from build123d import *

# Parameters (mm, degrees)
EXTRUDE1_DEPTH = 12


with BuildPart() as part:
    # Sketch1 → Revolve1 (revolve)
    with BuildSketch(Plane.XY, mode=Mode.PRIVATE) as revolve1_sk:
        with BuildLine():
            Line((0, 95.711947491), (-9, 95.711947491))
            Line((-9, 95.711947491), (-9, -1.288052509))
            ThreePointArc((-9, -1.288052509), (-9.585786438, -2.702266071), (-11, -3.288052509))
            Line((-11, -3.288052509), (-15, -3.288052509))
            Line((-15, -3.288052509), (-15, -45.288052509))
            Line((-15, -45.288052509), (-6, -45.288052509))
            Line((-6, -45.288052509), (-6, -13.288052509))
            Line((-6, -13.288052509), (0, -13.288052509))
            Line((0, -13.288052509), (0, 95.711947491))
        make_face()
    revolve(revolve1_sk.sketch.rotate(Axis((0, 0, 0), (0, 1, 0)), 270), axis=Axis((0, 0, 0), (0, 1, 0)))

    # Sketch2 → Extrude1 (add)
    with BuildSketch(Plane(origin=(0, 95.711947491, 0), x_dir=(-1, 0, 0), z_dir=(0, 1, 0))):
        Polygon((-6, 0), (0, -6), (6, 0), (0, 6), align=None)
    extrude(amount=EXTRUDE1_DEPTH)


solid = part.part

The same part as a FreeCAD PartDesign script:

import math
import FreeCAD as App
import Part
import Sketcher
from FreeCAD import Vector
Q = App.Units.Quantity

doc = App.newDocument("Part")
body = doc.addObject("PartDesign::Body", "Body")

sketch1 = body.newObject("Sketcher::SketchObject", "Sketch")
sketch1.AttachmentSupport = (doc.getObject("XY_Plane"), [""])
sketch1.MapMode = "FlatFace"
sketch1.addGeometry([
    Part.LineSegment(Vector(0, 95.711947, 0), Vector(-9, 95.711947, 0)),
    Part.LineSegment(Vector(-9, 95.711947, 0), Vector(-9, -1.288053, 0)),
    Part.ArcOfCircle(Part.Circle(Vector(-11, -1.288053, 0), Vector(0, 0, 1), 2), math.radians(-90), math.radians(0)),
    Part.LineSegment(Vector(-11, -3.288053, 0), Vector(-15, -3.288053, 0)),
    Part.LineSegment(Vector(-15, -3.288053, 0), Vector(-15, -45.288053, 0)),
    Part.LineSegment(Vector(-15, -45.288053, 0), Vector(-6, -45.288053, 0)),
    Part.LineSegment(Vector(-6, -45.288053, 0), Vector(-6, -13.288053, 0)),
    Part.LineSegment(Vector(-6, -13.288053, 0), Vector(0, -13.288053, 0)),
    Part.LineSegment(Vector(0, -13.288053, 0), Vector(0, 95.711947, 0)),
], False)
sketch1.addConstraint([
    Sketcher.Constraint("Coincident", 0, 2, 1, 1),
    Sketcher.Constraint("Tangent", 1, 2, 2, 2),
    Sketcher.Constraint("Tangent", 2, 1, 3, 1),
    Sketcher.Constraint("Coincident", 3, 2, 4, 1),
    Sketcher.Constraint("Coincident", 4, 2, 5, 1),
    Sketcher.Constraint("Coincident", 5, 2, 6, 1),
    Sketcher.Constraint("Coincident", 6, 2, 7, 1),
    Sketcher.Constraint("Coincident", 7, 2, 8, 1),
    Sketcher.Constraint("Coincident", 8, 2, 0, 1),
    Sketcher.Constraint("Horizontal", 0),
    Sketcher.Constraint("Vertical", 1),
    Sketcher.Constraint("Horizontal", 3),
    Sketcher.Constraint("Vertical", 4),
    Sketcher.Constraint("Horizontal", 5),
    Sketcher.Constraint("Vertical", 6),
    Sketcher.Constraint("Horizontal", 7),
    Sketcher.Constraint("Vertical", 8),
    Sketcher.Constraint("PointOnObject", 7, 2, -2),
    Sketcher.Constraint("Equal", 0, 5),
    Sketcher.Constraint("Radius", 2, Q("2 mm")),
    Sketcher.Constraint("DistanceX", 0, 2, 0, 1, Q("9 mm")),
    Sketcher.Constraint("DistanceX", 3, 2, 3, 1, Q("4 mm")),
    Sketcher.Constraint("DistanceY", 1, 2, 1, 1, Q("97 mm")),
    Sketcher.Constraint("DistanceY", 4, 2, 4, 1, Q("42 mm")),
    Sketcher.Constraint("DistanceY", 6, 1, 6, 2, Q("32 mm")),
    Sketcher.Constraint("DistanceY", 2, 3, -1, 1, Q("1.288053 mm")),
])
revolution = body.newObject("PartDesign::Revolution", "Revolution")
revolution.Profile = sketch1
revolution.ReferenceAxis = (sketch1, ["V_Axis"])
revolution.Angle = 360

sketch2 = body.newObject("Sketcher::SketchObject", "Sketch001")
sketch2.AttachmentSupport = (doc.getObject("XZ_Plane"), [""])
sketch2.MapMode = "FlatFace"
sketch2.AttachmentOffset = App.Placement(Vector(0, 0, -95.711947), App.Rotation())
sketch2.addGeometry([
    Part.LineSegment(Vector(6, 0, 0), Vector(0, -6, 0)),
    Part.LineSegment(Vector(0, -6, 0), Vector(-6, 0, 0)),
    Part.LineSegment(Vector(-6, 0, 0), Vector(0, 6, 0)),
    Part.LineSegment(Vector(0, 6, 0), Vector(6, 0, 0)),
], False)
sketch2.addConstraint([
    Sketcher.Constraint("Coincident", 0, 2, 1, 1),
    Sketcher.Constraint("Coincident", 1, 2, 2, 1),
    Sketcher.Constraint("Coincident", 2, 2, 3, 1),
    Sketcher.Constraint("Coincident", 3, 2, 0, 1),
    Sketcher.Constraint("Symmetric", 0, 2, 2, 2, -1, 1),
    Sketcher.Constraint("Symmetric", 1, 2, 3, 2, -1, 1),
    Sketcher.Constraint("PointOnObject", 0, 2, -2),
    Sketcher.Constraint("PointOnObject", 1, 2, -1),
    Sketcher.Constraint("Perpendicular", 0, 1),
    Sketcher.Constraint("DistanceY", 0, 2, -1, 1, Q("6 mm")),
])
pad1 = body.newObject("PartDesign::Pad", "Pad")
pad1.Profile = sketch2
pad1.Length = 12
pad1.Reversed = True

doc.recompute()
